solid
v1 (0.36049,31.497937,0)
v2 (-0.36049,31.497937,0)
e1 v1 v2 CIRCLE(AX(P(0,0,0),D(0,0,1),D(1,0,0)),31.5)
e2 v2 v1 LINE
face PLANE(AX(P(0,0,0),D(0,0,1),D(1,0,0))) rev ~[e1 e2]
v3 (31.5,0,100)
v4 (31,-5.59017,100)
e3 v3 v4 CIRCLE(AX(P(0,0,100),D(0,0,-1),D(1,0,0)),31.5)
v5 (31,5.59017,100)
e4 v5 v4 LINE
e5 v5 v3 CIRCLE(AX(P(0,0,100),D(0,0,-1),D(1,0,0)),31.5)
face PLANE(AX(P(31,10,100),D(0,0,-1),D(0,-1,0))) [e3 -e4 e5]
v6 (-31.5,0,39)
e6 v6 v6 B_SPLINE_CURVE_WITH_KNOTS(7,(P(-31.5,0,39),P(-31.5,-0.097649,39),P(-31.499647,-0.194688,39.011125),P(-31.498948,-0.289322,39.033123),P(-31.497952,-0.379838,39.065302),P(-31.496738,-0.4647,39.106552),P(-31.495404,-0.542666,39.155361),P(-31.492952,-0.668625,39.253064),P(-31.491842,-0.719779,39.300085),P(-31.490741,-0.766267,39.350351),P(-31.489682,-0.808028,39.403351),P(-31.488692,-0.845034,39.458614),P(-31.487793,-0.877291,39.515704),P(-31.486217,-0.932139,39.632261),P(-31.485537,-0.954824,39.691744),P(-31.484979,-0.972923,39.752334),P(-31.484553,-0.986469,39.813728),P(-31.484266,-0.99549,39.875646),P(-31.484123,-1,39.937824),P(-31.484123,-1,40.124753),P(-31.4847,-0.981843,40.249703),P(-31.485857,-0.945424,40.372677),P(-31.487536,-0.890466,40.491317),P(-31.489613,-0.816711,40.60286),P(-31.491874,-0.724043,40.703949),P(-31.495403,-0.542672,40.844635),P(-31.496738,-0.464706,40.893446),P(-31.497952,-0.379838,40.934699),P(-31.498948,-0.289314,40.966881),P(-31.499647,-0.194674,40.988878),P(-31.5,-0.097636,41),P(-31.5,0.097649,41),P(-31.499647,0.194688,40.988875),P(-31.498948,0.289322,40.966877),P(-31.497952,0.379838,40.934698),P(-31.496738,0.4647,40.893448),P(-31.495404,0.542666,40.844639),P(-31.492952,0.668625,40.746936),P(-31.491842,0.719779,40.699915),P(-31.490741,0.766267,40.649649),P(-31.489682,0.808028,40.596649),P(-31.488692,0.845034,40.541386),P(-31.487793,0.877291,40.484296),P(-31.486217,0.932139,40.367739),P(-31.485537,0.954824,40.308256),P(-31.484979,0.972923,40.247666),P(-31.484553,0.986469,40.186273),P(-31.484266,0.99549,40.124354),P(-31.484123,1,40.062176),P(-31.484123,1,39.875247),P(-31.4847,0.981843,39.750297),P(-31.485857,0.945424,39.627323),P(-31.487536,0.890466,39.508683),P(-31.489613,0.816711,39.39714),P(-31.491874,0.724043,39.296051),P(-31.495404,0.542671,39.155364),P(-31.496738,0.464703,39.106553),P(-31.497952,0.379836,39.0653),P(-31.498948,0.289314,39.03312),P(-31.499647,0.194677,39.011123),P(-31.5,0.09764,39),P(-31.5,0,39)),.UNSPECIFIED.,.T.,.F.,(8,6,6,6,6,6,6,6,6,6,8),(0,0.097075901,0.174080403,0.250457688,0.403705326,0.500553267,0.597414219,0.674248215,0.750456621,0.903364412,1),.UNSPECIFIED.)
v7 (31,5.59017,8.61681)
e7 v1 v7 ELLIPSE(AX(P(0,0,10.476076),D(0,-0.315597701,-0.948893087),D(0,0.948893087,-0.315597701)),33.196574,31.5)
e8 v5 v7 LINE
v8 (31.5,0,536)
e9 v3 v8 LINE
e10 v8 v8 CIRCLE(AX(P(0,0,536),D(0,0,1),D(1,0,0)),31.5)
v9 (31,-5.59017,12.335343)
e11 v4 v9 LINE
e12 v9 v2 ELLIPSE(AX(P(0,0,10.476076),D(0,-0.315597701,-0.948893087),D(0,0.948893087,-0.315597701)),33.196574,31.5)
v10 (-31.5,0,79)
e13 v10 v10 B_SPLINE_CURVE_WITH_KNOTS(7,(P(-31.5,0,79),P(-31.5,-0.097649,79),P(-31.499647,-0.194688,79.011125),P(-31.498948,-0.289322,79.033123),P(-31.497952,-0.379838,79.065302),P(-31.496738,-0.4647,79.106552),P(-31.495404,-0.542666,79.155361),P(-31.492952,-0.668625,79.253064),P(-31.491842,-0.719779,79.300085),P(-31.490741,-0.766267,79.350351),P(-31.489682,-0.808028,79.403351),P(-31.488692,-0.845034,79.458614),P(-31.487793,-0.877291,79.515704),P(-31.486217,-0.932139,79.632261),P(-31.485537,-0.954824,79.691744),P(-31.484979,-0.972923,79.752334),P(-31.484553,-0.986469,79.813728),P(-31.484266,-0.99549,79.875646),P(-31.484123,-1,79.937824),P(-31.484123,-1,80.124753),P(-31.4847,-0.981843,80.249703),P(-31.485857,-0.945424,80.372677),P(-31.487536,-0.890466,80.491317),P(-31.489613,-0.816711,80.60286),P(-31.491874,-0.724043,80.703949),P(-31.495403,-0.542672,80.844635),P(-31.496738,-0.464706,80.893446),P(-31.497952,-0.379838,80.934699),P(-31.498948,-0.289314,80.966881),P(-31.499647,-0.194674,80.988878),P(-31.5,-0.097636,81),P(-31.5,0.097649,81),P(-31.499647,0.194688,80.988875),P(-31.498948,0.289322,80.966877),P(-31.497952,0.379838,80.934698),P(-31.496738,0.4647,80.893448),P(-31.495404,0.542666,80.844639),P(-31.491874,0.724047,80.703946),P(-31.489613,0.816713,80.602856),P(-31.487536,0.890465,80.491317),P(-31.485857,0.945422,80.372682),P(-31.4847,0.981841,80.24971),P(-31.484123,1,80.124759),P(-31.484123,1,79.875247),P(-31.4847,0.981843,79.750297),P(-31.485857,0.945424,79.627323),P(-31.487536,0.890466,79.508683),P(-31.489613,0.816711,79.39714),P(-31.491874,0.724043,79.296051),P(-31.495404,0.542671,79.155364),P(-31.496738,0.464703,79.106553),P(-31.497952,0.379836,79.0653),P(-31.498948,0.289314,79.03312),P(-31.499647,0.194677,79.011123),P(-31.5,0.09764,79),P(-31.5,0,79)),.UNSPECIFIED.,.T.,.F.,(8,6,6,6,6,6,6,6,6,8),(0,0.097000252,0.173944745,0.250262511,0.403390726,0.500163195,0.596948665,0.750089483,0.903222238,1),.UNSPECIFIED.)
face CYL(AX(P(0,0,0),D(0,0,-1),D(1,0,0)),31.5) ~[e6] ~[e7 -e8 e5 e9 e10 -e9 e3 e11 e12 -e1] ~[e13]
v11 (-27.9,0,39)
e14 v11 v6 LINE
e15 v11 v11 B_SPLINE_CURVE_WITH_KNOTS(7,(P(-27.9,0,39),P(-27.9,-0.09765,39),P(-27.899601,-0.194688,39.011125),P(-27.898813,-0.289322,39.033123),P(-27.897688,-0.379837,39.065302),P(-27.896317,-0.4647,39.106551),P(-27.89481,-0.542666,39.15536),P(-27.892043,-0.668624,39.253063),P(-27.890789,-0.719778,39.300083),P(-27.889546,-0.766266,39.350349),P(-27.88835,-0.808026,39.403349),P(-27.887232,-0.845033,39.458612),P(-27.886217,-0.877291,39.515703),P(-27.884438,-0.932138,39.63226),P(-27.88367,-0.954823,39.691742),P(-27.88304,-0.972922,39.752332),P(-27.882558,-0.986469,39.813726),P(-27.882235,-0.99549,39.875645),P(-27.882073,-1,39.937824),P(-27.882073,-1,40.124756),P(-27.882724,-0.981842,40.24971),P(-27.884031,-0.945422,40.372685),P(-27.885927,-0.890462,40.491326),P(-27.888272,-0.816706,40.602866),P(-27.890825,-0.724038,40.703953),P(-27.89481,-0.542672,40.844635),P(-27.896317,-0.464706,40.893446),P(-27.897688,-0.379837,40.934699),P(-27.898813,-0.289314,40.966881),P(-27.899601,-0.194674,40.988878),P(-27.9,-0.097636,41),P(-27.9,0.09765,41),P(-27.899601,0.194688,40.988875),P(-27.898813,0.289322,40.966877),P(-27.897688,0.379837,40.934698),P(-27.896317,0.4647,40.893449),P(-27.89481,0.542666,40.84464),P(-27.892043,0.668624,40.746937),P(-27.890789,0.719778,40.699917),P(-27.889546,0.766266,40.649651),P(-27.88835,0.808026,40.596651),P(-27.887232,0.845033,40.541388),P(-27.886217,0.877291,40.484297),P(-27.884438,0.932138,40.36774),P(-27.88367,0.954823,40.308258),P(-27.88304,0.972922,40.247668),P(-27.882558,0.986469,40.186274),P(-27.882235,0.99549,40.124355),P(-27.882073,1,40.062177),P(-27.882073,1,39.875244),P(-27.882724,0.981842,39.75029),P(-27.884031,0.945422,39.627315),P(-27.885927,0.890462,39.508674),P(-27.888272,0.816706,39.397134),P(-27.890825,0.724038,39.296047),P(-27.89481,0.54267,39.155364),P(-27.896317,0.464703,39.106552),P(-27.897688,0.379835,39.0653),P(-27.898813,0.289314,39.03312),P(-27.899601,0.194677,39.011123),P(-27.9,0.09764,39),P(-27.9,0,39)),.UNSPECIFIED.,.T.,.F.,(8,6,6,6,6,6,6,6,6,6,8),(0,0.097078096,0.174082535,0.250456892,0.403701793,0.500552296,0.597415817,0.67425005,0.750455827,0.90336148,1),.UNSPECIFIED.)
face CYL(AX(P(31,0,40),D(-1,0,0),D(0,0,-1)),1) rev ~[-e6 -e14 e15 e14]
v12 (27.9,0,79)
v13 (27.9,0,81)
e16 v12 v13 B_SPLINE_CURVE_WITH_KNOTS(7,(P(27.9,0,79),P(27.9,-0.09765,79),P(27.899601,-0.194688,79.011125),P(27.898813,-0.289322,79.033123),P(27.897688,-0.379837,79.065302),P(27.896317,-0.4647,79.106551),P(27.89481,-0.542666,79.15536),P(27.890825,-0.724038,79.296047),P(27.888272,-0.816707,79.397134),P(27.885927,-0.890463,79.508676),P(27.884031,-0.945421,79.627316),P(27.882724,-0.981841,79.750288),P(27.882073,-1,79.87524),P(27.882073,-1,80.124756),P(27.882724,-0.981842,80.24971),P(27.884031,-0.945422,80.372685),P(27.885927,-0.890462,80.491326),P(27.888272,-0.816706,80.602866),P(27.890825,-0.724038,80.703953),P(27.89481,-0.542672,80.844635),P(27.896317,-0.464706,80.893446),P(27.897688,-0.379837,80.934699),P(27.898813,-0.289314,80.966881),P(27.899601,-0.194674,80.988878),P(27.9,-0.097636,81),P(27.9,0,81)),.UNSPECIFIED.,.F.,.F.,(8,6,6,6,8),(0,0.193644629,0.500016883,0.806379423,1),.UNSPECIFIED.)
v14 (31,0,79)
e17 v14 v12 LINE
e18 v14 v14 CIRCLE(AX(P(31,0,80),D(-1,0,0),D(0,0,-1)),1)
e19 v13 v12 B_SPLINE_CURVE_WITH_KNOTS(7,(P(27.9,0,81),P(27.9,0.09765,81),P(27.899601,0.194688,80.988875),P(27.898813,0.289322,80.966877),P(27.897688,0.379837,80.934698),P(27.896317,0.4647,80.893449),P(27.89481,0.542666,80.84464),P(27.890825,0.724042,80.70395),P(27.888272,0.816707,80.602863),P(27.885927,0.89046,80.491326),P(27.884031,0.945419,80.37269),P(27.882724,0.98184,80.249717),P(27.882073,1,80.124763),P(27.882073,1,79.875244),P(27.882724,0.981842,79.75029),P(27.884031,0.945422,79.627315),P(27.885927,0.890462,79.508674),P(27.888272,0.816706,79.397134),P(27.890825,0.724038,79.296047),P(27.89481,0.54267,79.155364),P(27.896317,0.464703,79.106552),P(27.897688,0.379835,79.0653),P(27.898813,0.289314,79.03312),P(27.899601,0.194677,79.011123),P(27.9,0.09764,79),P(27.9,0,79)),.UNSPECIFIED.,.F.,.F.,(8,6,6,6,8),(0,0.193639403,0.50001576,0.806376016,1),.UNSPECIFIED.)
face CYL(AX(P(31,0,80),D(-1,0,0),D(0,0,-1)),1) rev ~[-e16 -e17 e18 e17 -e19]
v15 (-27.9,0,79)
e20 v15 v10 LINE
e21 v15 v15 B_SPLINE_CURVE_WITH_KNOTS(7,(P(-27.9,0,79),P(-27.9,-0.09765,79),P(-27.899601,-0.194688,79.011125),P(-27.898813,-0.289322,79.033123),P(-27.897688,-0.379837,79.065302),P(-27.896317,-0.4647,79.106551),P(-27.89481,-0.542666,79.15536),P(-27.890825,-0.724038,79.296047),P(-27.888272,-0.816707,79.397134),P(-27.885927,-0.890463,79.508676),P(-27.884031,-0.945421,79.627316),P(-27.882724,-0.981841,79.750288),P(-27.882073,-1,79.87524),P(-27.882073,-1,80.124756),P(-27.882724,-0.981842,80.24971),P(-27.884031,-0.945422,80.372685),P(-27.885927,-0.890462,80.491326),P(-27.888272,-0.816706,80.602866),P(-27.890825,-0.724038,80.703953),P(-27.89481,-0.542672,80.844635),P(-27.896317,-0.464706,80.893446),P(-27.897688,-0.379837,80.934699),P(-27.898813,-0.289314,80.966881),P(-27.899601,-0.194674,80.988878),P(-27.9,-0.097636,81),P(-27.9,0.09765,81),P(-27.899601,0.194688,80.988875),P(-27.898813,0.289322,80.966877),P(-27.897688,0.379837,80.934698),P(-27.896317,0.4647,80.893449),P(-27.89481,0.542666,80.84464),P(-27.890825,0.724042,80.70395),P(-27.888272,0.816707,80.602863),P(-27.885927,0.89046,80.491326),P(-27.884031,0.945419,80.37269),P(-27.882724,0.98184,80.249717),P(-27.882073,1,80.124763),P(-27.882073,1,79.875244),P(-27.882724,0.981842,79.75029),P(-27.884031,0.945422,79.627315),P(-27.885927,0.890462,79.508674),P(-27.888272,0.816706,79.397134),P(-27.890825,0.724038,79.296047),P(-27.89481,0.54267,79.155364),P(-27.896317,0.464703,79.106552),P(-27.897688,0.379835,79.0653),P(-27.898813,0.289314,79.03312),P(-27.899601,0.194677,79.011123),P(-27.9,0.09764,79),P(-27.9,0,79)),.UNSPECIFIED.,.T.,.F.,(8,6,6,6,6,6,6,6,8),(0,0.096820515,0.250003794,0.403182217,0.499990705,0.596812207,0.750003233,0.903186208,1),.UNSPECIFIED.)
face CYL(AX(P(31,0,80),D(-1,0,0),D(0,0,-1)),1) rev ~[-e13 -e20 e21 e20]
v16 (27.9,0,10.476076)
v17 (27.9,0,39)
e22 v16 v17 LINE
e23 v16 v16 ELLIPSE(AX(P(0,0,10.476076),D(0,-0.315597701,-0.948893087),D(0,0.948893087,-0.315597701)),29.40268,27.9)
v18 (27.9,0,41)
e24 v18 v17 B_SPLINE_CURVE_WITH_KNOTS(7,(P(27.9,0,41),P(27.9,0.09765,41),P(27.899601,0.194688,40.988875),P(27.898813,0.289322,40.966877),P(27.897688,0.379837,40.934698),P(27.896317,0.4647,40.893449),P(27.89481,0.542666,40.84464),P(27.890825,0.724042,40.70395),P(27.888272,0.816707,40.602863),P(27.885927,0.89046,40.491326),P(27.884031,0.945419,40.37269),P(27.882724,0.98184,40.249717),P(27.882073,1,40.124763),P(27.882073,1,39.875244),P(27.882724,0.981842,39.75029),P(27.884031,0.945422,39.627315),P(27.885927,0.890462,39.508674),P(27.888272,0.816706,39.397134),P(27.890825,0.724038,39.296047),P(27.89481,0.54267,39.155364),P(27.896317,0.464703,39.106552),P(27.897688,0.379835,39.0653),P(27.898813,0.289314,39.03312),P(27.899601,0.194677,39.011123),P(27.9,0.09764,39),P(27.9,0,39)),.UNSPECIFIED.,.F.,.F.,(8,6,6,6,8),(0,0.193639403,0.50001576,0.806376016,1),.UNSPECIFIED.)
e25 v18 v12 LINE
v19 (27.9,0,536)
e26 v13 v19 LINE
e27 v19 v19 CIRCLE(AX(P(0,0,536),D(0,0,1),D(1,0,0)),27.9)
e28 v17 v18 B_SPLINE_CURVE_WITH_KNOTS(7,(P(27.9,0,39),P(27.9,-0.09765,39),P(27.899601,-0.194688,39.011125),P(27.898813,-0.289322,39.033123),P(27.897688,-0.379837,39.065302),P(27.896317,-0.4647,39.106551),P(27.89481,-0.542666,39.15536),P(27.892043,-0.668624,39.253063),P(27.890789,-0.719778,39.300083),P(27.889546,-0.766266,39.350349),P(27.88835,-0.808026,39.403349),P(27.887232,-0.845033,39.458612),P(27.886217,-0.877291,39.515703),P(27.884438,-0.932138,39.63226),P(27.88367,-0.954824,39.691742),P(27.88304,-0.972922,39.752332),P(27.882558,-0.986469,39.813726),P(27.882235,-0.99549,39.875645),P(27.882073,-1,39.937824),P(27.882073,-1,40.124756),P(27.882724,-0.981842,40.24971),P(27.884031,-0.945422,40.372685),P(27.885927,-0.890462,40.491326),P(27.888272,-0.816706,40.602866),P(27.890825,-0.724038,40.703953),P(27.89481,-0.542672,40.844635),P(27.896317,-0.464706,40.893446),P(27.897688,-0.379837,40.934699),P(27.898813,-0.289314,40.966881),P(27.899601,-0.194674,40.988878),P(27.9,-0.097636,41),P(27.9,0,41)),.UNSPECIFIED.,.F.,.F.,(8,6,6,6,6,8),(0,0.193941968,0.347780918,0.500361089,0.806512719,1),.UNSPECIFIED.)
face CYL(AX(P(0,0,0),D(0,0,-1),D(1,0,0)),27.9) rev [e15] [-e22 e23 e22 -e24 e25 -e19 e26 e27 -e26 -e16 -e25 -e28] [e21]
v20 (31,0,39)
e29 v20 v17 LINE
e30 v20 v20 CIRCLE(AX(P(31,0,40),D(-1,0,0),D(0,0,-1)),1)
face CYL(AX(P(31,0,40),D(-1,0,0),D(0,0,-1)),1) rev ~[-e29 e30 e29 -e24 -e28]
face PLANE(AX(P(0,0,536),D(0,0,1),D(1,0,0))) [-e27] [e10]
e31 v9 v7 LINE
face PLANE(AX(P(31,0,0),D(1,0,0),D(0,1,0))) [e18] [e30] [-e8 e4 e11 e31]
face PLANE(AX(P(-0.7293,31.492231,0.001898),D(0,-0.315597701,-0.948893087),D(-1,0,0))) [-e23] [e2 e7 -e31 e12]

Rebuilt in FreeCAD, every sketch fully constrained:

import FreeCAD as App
import Part
import Sketcher


def add_polygon(sketch, points):
    """Adds a closed chain of lines whose ends are joined by coincident constraints."""
    first, n = sketch.GeometryCount, len(points)
    for a, b in zip(points, points[1:] + points[:1]):
        sketch.addGeometry(Part.LineSegment(App.Vector(*a, 0), App.Vector(*b, 0)), False)
    for i in range(n):
        sketch.addConstraint(Sketcher.Constraint("Coincident", first + i, 2, first + (i + 1) % n, 1))

doc = App.newDocument("Part")
body = doc.addObject("PartDesign::Body", "Body")

sketch1 = body.newObject("Sketcher::SketchObject", "Sketch")
sketch1.AttachmentSupport = (doc.getObject("XY_Plane"), [""])
sketch1.MapMode = "FlatFace"
sketch1.addGeometry([
    Part.Circle(App.Vector(0, 0, 0), App.Vector(0, 0, 1), 32),
    Part.Circle(App.Vector(0, 0, 0), App.Vector(0, 0, 1), 28),
], False)
sketch1.addConstraint([
    Sketcher.Constraint("Coincident", 0, 3, -1, 1),
    Sketcher.Constraint("Coincident", 1, 3, -1, 1),
    Sketcher.Constraint("Diameter", 0, 63.0),
    Sketcher.Constraint("Diameter", 1, 55.8),
])
pad1 = body.newObject("PartDesign::Pad", "Pad")
pad1.Profile = sketch1
pad1.Length = 536

sketch2 = body.newObject("Sketcher::SketchObject", "Sketch001")
sketch2.AttachmentSupport = (doc.getObject("YZ_Plane"), [""])
sketch2.MapMode = "FlatFace"
sketch2.AttachmentOffset = App.Placement(App.Vector(0, 0, 31), App.Rotation())
add_polygon(sketch2, [(-10, 100), (-10, 0), (10, 0), (10, 100)])
sketch2.addConstraint([
    Sketcher.Constraint("Vertical", 0),
    Sketcher.Constraint("Horizontal", 1),
    Sketcher.Constraint("Vertical", 2),
    Sketcher.Constraint("Horizontal", 3),
    Sketcher.Constraint("Symmetric", 0, 2, 1, 2, -1, 1),
    Sketcher.Constraint("DistanceX", 1, 1, 1, 2, 20.0),
    Sketcher.Constraint("DistanceY", 0, 2, 0, 1, 100.0),
])
pocket1 = body.newObject("PartDesign::Pocket", "Pocket")
pocket1.Profile = sketch2
pocket1.Length = 25.4
pocket1.Reversed = True

sketch3 = body.newObject("Sketcher::SketchObject", "Sketch002")
sketch3.Placement = App.Placement(App.Vector(-0.7293, 31.4916, 0), App.Rotation(App.Vector(-1, 0, 0), App.Vector(0, 0.948893087, -0.315597701), App.Vector(0, -0.315597701, -0.948893087), "ZXY"))
add_polygon(sketch3, [(-35, 9), (-35, -85), (32, -85), (32, 9)])
sketch3.addConstraint([
    Sketcher.Constraint("Vertical", 0),
    Sketcher.Constraint("Horizontal", 1),
    Sketcher.Constraint("Vertical", 2),
    Sketcher.Constraint("Horizontal", 3),
    Sketcher.Constraint("DistanceX", 1, 1, 1, 2, 66.5527),
    Sketcher.Constraint("DistanceY", 0, 2, 0, 1, 93.4143),
    Sketcher.Constraint("DistanceX", 0, 2, -1, 1, 34.8075),
    Sketcher.Constraint("DistanceY", 0, 2, -1, 1, 84.5558),
])
pocket2 = body.newObject("PartDesign::Pocket", "Pocket001")
pocket2.Profile = sketch3
pocket2.Length = 25.4
pocket2.Reversed = True

sketch4 = body.newObject("Sketcher::SketchObject", "Sketch003")
sketch4.AttachmentSupport = (doc.getObject("YZ_Plane"), [""])
sketch4.MapMode = "FlatFace"
sketch4.AttachmentOffset = App.Placement(App.Vector(0, 0, 31), App.Rotation())
sketch4.addGeometry([
    Part.Circle(App.Vector(0, 80, 0), App.Vector(0, 0, 1), 1),
    Part.Circle(App.Vector(0, 40, 0), App.Vector(0, 0, 1), 1),
], False)
sketch4.addConstraint([
    Sketcher.Constraint("Equal", 0, 1),
    Sketcher.Constraint("PointOnObject", 0, 3, -2),
    Sketcher.Constraint("PointOnObject", 1, 3, -2),
    Sketcher.Constraint("Diameter", 0, 2.0),
    Sketcher.Constraint("DistanceY", -1, 1, 0, 3, 80.0),
    Sketcher.Constraint("DistanceY", -1, 1, 1, 3, 40.0),
])
doc.recompute()
hole = body.newObject("PartDesign::Hole", "Hole")
hole.Profile = sketch4
hole.ThreadType = "None"
hole.Diameter = 2
hole.DepthType = "ThroughAll"

doc.recompute()
